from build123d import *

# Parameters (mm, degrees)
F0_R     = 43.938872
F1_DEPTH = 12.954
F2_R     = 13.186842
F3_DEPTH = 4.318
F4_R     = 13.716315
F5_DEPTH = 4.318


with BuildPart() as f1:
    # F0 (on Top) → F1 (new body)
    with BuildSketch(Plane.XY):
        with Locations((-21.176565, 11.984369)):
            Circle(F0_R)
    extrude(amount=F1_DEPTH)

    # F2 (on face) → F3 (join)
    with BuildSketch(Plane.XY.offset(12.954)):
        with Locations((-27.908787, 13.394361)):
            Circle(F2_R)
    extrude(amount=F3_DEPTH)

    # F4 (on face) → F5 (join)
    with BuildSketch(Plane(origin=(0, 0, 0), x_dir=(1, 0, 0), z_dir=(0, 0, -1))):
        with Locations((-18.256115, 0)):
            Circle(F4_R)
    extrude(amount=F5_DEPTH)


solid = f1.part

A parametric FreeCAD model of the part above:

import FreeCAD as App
import Part
import Sketcher
from FreeCAD import Vector
Q = App.Units.Quantity

doc = App.newDocument("Part")
body = doc.addObject("PartDesign::Body", "Body")

sketch1 = body.newObject("Sketcher::SketchObject", "Sketch")
sketch1.AttachmentSupport = (doc.getObject("XY_Plane"), [""])
sketch1.MapMode = "FlatFace"
sketch1.addGeometry(Part.Circle(Vector(-21.176565, 11.984369, 0), Vector(0, 0, 1), 43.938872), False)
sketch1.addConstraint(Sketcher.Constraint("Diameter", 0, 87.877744))
sketch1.addConstraint(Sketcher.Constraint("DistanceY", -1, 1, 0, 3, 11.984369))
sketch1.addConstraint(Sketcher.Constraint("DistanceX", 0, 3, -1, 1, 21.176565))
pad1 = body.newObject("PartDesign::Pad", "Pad")
pad1.Profile = sketch1
pad1.Length = Q("0.51 in")

sketch2 = body.newObject("Sketcher::SketchObject", "Sketch001")
sketch2.AttachmentSupport = (doc.getObject("XY_Plane"), [""])
sketch2.MapMode = "FlatFace"
sketch2.AttachmentOffset = App.Placement(Vector(0, 0, 0.51 * 25.4), App.Rotation())
sketch2.addGeometry(Part.Circle(Vector(-27.908787, 13.394361, 0), Vector(0, 0, 1), 13.186842), False)
sketch2.addConstraint(Sketcher.Constraint("Diameter", 0, 26.373684))
sketch2.addConstraint(Sketcher.Constraint("DistanceY", -1, 1, 0, 3, 13.394361))
sketch2.addConstraint(Sketcher.Constraint("DistanceX", 0, 3, -1, 1, 27.908787))
pad2 = body.newObject("PartDesign::Pad", "Pad001")
pad2.Profile = sketch2
pad2.Length = Q("0.17 in")

sketch3 = body.newObject("Sketcher::SketchObject", "Sketch002")
sketch3.AttachmentSupport = (doc.getObject("XY_Plane"), [""])
sketch3.MapMode = "FlatFace"
sketch3.addGeometry(Part.Circle(Vector(-18.256115, 0, 0), Vector(0, 0, 1), 13.716315), False)
sketch3.addConstraint(Sketcher.Constraint("PointOnObject", 0, 3, -1))
sketch3.addConstraint(Sketcher.Constraint("Diameter", 0, 27.43263))
sketch3.addConstraint(Sketcher.Constraint("DistanceX", 0, 3, -1, 1, 18.256115))
pad3 = body.newObject("PartDesign::Pad", "Pad002")
pad3.Profile = sketch3
pad3.Length = Q("0.17 in")
pad3.Reversed = True

doc.recompute()
